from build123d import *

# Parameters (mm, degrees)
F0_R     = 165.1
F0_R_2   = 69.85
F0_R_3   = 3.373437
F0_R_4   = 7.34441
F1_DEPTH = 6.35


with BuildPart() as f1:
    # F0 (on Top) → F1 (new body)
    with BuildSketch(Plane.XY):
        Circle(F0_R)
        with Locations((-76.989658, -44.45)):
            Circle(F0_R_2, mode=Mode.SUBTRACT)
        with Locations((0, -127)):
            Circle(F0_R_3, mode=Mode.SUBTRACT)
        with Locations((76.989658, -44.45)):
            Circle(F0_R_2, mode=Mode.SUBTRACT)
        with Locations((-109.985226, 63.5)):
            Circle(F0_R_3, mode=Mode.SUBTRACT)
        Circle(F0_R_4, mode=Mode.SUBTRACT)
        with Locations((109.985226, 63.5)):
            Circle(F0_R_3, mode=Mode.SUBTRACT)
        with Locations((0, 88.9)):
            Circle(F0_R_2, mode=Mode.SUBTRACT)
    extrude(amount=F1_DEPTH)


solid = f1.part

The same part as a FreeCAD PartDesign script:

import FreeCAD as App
import Part
import Sketcher

V = App.Vector
Q = App.Units.Quantity

doc = App.newDocument("Part")
body = doc.addObject("PartDesign::Body", "Body")

# Sketch on XY plane
sketch1 = body.newObject("Sketcher::SketchObject", "Sketch")
sketch1.AttachmentSupport = (doc.getObject("XY_Plane"), [""])
sketch1.MapMode = "FlatFace"
sketch1.addGeometry(Part.Circle(V(0, 0, 0), V(0, 0, 1), 165.1), False)
sketch1.addGeometry(Part.Circle(V(-76.989658, -44.45, 0), V(0, 0, 1), 69.85), False)
sketch1.addGeometry(Part.Circle(V(0, -127, 0), V(0, 0, 1), 3.373437), False)
sketch1.addGeometry(Part.Circle(V(0, 0, 0), V(0, 0, 1), 7.34441), False)
sketch1.addGeometry(Part.Circle(V(76.989658, -44.45, 0), V(0, 0, 1), 69.85), False)
sketch1.addGeometry(Part.Circle(V(-109.985226, 63.5, 0), V(0, 0, 1), 3.373437), False)
sketch1.addGeometry(Part.Circle(V(109.985226, 63.5, 0), V(0, 0, 1), 3.373437), False)
sketch1.addGeometry(Part.Circle(V(0, 88.9, 0), V(0, 0, 1), 69.85), False)
sketch1.addConstraint(Sketcher.Constraint("Coincident", 0, 3, -1, 1))
sketch1.addConstraint(Sketcher.Constraint("Coincident", 3, 3, -1, 1))
sketch1.addConstraint(Sketcher.Constraint("Equal", 1, 4))
sketch1.addConstraint(Sketcher.Constraint("Equal", 2, 5))
sketch1.addConstraint(Sketcher.Constraint("Equal", 5, 6))
sketch1.addConstraint(Sketcher.Constraint("Equal", 4, 7))
sketch1.addConstraint(Sketcher.Constraint("Symmetric", 1, 3, 4, 3, -2))
sketch1.addConstraint(Sketcher.Constraint("Symmetric", 5, 3, 6, 3, -2))
sketch1.addConstraint(Sketcher.Constraint("PointOnObject", 2, 3, -2))
sketch1.addConstraint(Sketcher.Constraint("PointOnObject", 7, 3, -2))
sketch1.addConstraint(Sketcher.Constraint("Diameter", 0, Q("13 in")))
sketch1.addConstraint(Sketcher.Constraint("Diameter", 1, Q("5.5 in")))
sketch1.addConstraint(Sketcher.Constraint("Diameter", 2, Q("0.265625 in")))
sketch1.addConstraint(Sketcher.Constraint("DistanceY", 2, 3, -1, 1, Q("5 in")))
sketch1.addConstraint(Sketcher.Constraint("DistanceY", 5, 3, 7, 3, Q("1 in")))
sketch1.addConstraint(Sketcher.Constraint("Diameter", 3, Q("0.5783 in")))
sketch1.addConstraint(Sketcher.Constraint("DistanceY", -1, 1, 5, 3, Q("2.5 in")))
sketch1.addConstraint(Sketcher.Constraint("DistanceY", 1, 3, -1, 1, Q("1.75 in")))
sketch1.addConstraint(Sketcher.Constraint("DistanceX", 1, 3, -1, 1, 76.989658))
sketch1.addConstraint(Sketcher.Constraint("DistanceX", 5, 3, 6, 3, 219.970452))
pad1 = body.newObject("PartDesign::Pad", "Pad")
pad1.Profile = sketch1
pad1.Length = Q("0.25 in")

doc.recompute()
